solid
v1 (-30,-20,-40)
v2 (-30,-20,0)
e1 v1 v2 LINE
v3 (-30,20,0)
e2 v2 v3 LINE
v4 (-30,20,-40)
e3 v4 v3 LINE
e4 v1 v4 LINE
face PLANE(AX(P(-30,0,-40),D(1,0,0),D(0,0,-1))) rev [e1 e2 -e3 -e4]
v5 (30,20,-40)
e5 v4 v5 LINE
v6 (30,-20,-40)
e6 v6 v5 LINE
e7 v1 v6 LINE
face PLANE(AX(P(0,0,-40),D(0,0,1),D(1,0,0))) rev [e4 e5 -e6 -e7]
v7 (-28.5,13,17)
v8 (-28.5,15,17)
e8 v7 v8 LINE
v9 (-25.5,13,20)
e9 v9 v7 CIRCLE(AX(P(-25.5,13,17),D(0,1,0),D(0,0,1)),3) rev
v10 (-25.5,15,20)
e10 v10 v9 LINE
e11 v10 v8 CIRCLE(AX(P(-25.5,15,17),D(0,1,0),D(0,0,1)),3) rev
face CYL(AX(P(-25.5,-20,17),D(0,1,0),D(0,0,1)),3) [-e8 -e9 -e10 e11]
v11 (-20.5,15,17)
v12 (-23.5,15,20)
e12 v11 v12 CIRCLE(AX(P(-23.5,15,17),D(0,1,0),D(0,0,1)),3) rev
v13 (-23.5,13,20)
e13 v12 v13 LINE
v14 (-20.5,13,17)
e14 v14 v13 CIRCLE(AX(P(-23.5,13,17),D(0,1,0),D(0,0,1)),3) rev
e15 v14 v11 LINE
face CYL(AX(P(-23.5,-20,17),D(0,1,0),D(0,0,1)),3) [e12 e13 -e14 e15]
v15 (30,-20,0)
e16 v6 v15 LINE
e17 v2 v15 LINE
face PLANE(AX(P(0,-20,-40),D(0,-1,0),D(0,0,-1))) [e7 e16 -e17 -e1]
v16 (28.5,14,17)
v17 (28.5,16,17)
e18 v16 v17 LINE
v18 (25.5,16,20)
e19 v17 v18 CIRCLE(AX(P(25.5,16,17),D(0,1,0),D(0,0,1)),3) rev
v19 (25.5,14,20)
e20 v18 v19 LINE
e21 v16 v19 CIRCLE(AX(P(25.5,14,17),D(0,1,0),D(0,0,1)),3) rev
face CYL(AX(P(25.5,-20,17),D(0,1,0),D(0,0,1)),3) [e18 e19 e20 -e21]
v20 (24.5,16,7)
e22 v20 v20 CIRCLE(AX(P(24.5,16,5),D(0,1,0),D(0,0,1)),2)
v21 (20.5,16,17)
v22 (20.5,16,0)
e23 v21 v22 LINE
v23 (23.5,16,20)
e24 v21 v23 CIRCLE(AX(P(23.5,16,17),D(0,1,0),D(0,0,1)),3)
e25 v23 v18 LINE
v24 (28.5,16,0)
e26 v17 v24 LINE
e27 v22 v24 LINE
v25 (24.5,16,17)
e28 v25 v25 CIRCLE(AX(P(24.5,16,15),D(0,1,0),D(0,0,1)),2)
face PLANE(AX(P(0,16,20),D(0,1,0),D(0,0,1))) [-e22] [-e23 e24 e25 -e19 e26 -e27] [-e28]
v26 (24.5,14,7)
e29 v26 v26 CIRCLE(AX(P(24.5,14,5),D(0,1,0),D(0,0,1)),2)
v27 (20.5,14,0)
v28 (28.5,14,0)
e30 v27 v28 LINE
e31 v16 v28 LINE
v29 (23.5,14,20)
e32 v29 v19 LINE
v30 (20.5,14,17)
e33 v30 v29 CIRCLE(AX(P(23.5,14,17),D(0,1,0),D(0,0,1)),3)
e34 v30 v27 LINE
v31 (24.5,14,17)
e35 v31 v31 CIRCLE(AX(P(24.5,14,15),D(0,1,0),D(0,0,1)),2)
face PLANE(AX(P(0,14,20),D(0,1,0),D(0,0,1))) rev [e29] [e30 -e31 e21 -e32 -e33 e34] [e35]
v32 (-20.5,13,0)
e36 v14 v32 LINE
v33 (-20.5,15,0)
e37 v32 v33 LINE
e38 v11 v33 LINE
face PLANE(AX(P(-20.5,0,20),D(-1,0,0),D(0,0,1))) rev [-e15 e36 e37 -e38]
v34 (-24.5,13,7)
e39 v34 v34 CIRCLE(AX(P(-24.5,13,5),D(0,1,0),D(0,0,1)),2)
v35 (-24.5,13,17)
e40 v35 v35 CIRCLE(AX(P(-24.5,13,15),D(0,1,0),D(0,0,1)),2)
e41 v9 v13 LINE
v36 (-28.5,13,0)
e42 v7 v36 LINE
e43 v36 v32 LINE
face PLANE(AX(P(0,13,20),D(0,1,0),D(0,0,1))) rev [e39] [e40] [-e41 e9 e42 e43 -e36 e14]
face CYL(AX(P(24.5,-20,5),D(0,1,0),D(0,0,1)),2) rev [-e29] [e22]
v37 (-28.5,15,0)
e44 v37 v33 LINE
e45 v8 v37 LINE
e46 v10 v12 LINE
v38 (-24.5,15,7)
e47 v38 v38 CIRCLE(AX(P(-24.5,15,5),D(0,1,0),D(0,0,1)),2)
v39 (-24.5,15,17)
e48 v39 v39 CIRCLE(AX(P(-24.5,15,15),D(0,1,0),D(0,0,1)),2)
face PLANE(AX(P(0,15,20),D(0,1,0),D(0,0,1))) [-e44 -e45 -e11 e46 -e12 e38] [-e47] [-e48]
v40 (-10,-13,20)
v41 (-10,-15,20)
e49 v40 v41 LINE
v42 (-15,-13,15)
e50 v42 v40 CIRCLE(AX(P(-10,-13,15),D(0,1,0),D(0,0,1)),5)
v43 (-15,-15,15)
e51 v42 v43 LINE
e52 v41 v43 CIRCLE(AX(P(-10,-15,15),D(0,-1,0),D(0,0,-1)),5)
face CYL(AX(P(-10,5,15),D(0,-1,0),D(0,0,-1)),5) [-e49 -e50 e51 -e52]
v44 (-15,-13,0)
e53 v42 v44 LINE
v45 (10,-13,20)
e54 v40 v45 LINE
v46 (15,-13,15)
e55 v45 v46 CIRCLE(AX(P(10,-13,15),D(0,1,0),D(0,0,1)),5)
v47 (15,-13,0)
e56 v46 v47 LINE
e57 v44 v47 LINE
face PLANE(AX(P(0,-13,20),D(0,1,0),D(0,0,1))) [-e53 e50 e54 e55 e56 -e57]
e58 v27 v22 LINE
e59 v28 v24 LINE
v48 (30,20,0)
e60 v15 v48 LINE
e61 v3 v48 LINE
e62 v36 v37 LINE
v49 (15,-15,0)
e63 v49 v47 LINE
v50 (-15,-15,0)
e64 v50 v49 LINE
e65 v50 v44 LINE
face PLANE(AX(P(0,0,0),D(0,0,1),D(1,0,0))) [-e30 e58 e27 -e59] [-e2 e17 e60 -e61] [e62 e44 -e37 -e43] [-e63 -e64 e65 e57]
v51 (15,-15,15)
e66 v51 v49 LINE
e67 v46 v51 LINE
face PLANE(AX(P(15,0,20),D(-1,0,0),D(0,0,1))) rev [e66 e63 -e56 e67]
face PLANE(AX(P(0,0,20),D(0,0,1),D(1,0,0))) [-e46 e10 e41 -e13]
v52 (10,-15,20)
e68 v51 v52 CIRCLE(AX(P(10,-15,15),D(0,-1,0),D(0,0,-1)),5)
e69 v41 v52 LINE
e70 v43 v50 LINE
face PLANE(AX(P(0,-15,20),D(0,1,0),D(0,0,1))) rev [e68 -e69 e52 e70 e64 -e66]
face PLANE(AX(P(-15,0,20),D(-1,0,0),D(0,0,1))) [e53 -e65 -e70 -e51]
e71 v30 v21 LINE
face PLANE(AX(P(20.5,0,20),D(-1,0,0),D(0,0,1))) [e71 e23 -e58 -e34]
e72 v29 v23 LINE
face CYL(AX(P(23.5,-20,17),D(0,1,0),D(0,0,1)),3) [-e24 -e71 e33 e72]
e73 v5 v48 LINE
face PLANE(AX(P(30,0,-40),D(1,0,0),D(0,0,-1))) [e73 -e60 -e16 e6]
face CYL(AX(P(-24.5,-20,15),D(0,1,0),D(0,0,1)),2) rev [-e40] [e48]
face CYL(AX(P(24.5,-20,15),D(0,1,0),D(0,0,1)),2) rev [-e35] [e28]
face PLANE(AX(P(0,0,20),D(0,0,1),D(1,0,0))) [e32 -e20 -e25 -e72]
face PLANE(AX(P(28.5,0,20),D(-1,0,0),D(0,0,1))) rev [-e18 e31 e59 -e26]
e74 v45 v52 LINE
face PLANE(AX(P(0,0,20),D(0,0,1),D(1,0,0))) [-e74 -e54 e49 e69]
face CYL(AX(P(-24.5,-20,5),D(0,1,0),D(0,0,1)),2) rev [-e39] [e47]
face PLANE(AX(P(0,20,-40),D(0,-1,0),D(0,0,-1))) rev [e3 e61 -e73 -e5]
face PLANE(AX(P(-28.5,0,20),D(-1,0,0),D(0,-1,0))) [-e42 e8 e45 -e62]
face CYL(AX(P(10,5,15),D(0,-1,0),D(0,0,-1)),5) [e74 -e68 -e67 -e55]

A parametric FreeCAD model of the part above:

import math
import FreeCAD as App
import Part
import Sketcher


def add_polygon(sketch, points):
    """Adds a closed chain of lines whose ends are joined by coincident constraints."""
    first, n = sketch.GeometryCount, len(points)
    for a, b in zip(points, points[1:] + points[:1]):
        sketch.addGeometry(Part.LineSegment(App.Vector(*a, 0), App.Vector(*b, 0)), False)
    for i in range(n):
        sketch.addConstraint(Sketcher.Constraint("Coincident", first + i, 2, first + (i + 1) % n, 1))

doc = App.newDocument("Part")
body = doc.addObject("PartDesign::Body", "Body")

sketch1 = body.newObject("Sketcher::SketchObject", "Sketch")
sketch1.AttachmentSupport = (doc.getObject("XY_Plane"), [""])
sketch1.MapMode = "FlatFace"
add_polygon(sketch1, [(-30, 20), (-30, -20), (30, -20), (30, 20)])
sketch1.addConstraint(Sketcher.Constraint("Vertical", 0))
sketch1.addConstraint(Sketcher.Constraint("Horizontal", 1))
sketch1.addConstraint(Sketcher.Constraint("Vertical", 2))
sketch1.addConstraint(Sketcher.Constraint("Horizontal", 3))
sketch1.addConstraint(Sketcher.Constraint("Symmetric", 0, 2, 2, 2, -1, 1))
sketch1.addConstraint(Sketcher.Constraint("DistanceX", 1, 1, 1, 2, 60.0))
sketch1.addConstraint(Sketcher.Constraint("DistanceY", 0, 2, 0, 1, 40.0))
pad1 = body.newObject("PartDesign::Pad", "Pad")
pad1.Profile = sketch1
pad1.Length = 40
pad1.Reversed = True

sketch2 = body.newObject("Sketcher::SketchObject", "Sketch001")
sketch2.AttachmentSupport = (doc.getObject("XY_Plane"), [""])
sketch2.MapMode = "FlatFace"
add_polygon(sketch2, [(-28.5, 15), (-28.5, 13), (-20.5, 13), (-20.5, 15)])
add_polygon(sketch2, [(20.5, 16), (20.5, 14), (28.5, 14), (28.5, 16)])
add_polygon(sketch2, [(-15, -13), (-15, -15), (15, -15), (15, -13)])
sketch2.addConstraint(Sketcher.Constraint("Vertical", 0))
sketch2.addConstraint(Sketcher.Constraint("Horizontal", 1))
sketch2.addConstraint(Sketcher.Constraint("Vertical", 2))
sketch2.addConstraint(Sketcher.Constraint("Horizontal", 3))
sketch2.addConstraint(Sketcher.Constraint("Vertical", 4))
sketch2.addConstraint(Sketcher.Constraint("Horizontal", 5))
sketch2.addConstraint(Sketcher.Constraint("Vertical", 6))
sketch2.addConstraint(Sketcher.Constraint("Horizontal", 7))
sketch2.addConstraint(Sketcher.Constraint("Vertical", 8))
sketch2.addConstraint(Sketcher.Constraint("Horizontal", 9))
sketch2.addConstraint(Sketcher.Constraint("Vertical", 10))
sketch2.addConstraint(Sketcher.Constraint("Horizontal", 11))
sketch2.addConstraint(Sketcher.Constraint("Equal", 3, 5))
sketch2.addConstraint(Sketcher.Constraint("Equal", 2, 4))
sketch2.addConstraint(Sketcher.Constraint("Equal", 6, 8))
sketch2.addConstraint(Sketcher.Constraint("DistanceX", 1, 1, 1, 2, 8.0))
sketch2.addConstraint(Sketcher.Constraint("DistanceX", 9, 1, 9, 2, 30.0))
sketch2.addConstraint(Sketcher.Constraint("DistanceY", 0, 2, 0, 1, 2.0))
sketch2.addConstraint(Sketcher.Constraint("DistanceY", -1, 1, 0, 2, 13.0))
sketch2.addConstraint(Sketcher.Constraint("DistanceY", -1, 1, 4, 2, 14.0))
sketch2.addConstraint(Sketcher.Constraint("DistanceX", 8, 2, -1, 1, 15.0))
sketch2.addConstraint(Sketcher.Constraint("DistanceY", 8, 2, -1, 1, 15.0))
sketch2.addConstraint(Sketcher.Constraint("DistanceX", 1, 2, 4, 2, 41.0))
sketch2.addConstraint(Sketcher.Constraint("DistanceX", 0, 2, -1, 1, 28.5))
pad2 = body.newObject("PartDesign::Pad", "Pad001")
pad2.Profile = sketch2
pad2.Length = 20

sketch3 = body.newObject("Sketcher::SketchObject", "Sketch002")
sketch3.AttachmentSupport = (doc.getObject("XZ_Plane"), [""])
sketch3.MapMode = "FlatFace"
sketch3.AttachmentOffset = App.Placement(App.Vector(0, 0, -16), App.Rotation())
sketch3.addGeometry(Part.Circle(App.Vector(-24.5, 15, 0), App.Vector(0, 0, 1), 2), False)
sketch3.addGeometry(Part.Circle(App.Vector(-24.5, 5, 0), App.Vector(0, 0, 1), 2), False)
sketch3.addGeometry(Part.Circle(App.Vector(24.5, 5, 0), App.Vector(0, 0, 1), 2), False)
sketch3.addGeometry(Part.Circle(App.Vector(24.5, 15, 0), App.Vector(0, 0, 1), 2), False)
sketch3.addGeometry(Part.ArcOfCircle(Part.Circle(App.Vector(23.5, 17, 0), App.Vector(0, 0, 1), 3), math.radians(90), math.radians(180)), False)
sketch3.addGeometry(Part.LineSegment(App.Vector(20.5, 17, 0), App.Vector(20.5, 20, 0)), False)
sketch3.addGeometry(Part.LineSegment(App.Vector(20.5, 20, 0), App.Vector(23.5, 20, 0)), False)
sketch3.addGeometry(Part.LineSegment(App.Vector(28.5, 20, 0), App.Vector(28.5, 17, 0)), False)
sketch3.addGeometry(Part.ArcOfCircle(Part.Circle(App.Vector(25.5, 17, 0), App.Vector(0, 0, 1), 3), math.radians(0), math.radians(90)), False)
sketch3.addGeometry(Part.LineSegment(App.Vector(25.5, 20, 0), App.Vector(28.5, 20, 0)), False)
sketch3.addGeometry(Part.ArcOfCircle(Part.Circle(App.Vector(-25.5, 17, 0), App.Vector(0, 0, 1), 3), math.radians(90), math.radians(180)), False)
sketch3.addGeometry(Part.LineSegment(App.Vector(-28.5, 17, 0), App.Vector(-28.5, 20, 0)), False)
sketch3.addGeometry(Part.LineSegment(App.Vector(-28.5, 20, 0), App.Vector(-25.5, 20, 0)), False)
sketch3.addGeometry(Part.LineSegment(App.Vector(-20.5, 20, 0), App.Vector(-20.5, 17, 0)), False)
sketch3.addGeometry(Part.ArcOfCircle(Part.Circle(App.Vector(-23.5, 17, 0), App.Vector(0, 0, 1), 3), math.radians(0), math.radians(90)), False)
sketch3.addGeometry(Part.LineSegment(App.Vector(-23.5, 20, 0), App.Vector(-20.5, 20, 0)), False)
sketch3.addConstraint(Sketcher.Constraint("Tangent", 4, 2, 5, 1))
sketch3.addConstraint(Sketcher.Constraint("Coincident", 5, 2, 6, 1))
sketch3.addConstraint(Sketcher.Constraint("Tangent", 6, 2, 4, 1))
sketch3.addConstraint(Sketcher.Constraint("Tangent", 7, 2, 8, 1))
sketch3.addConstraint(Sketcher.Constraint("Tangent", 8, 2, 9, 1))
sketch3.addConstraint(Sketcher.Constraint("Coincident", 9, 2, 7, 1))
sketch3.addConstraint(Sketcher.Constraint("Tangent", 10, 2, 11, 1))
sketch3.addConstraint(Sketcher.Constraint("Coincident", 11, 2, 12, 1))
sketch3.addConstraint(Sketcher.Constraint("Tangent", 12, 2, 10, 1))
sketch3.addConstraint(Sketcher.Constraint("Tangent", 13, 2, 14, 1))
sketch3.addConstraint(Sketcher.Constraint("Tangent", 14, 2, 15, 1))
sketch3.addConstraint(Sketcher.Constraint("Coincident", 15, 2, 13, 1))
sketch3.addConstraint(Sketcher.Constraint("Vertical", 5))
sketch3.addConstraint(Sketcher.Constraint("Horizontal", 6))
sketch3.addConstraint(Sketcher.Constraint("Vertical", 7))
sketch3.addConstraint(Sketcher.Constraint("Horizontal", 9))
sketch3.addConstraint(Sketcher.Constraint("Vertical", 11))
sketch3.addConstraint(Sketcher.Constraint("Horizontal", 12))
sketch3.addConstraint(Sketcher.Constraint("Vertical", 13))
sketch3.addConstraint(Sketcher.Constraint("Horizontal", 15))
sketch3.addConstraint(Sketcher.Constraint("Equal", 0, 1))
sketch3.addConstraint(Sketcher.Constraint("Equal", 1, 2))
sketch3.addConstraint(Sketcher.Constraint("Equal", 2, 3))
sketch3.addConstraint(Sketcher.Constraint("Equal", 4, 8))
sketch3.addConstraint(Sketcher.Constraint("Equal", 8, 10))
sketch3.addConstraint(Sketcher.Constraint("Equal", 10, 14))
sketch3.addConstraint(Sketcher.Constraint("Symmetric", 1, 3, 2, 3, -2))
sketch3.addConstraint(Sketcher.Constraint("Symmetric", 0, 3, 3, 3, -2))
sketch3.addConstraint(Sketcher.Constraint("Symmetric", 8, 3, 10, 3, -2))
sketch3.addConstraint(Sketcher.Constraint("Symmetric", 4, 3, 14, 3, -2))
sketch3.addConstraint(Sketcher.Constraint("Horizontal", 4, 3, 8, 3))
sketch3.addConstraint(Sketcher.Constraint("Vertical", 0, 3, 1, 3))
sketch3.addConstraint(Sketcher.Constraint("Diameter", 0, 4.0))
sketch3.addConstraint(Sketcher.Constraint("Radius", 4, 3.0))
sketch3.addConstraint(Sketcher.Constraint("DistanceY", -1, 1, 0, 3, 15.0))
sketch3.addConstraint(Sketcher.Constraint("DistanceY", -1, 1, 1, 3, 5.0))
sketch3.addConstraint(Sketcher.Constraint("DistanceY", -1, 1, 4, 3, 17.0))
sketch3.addConstraint(Sketcher.Constraint("DistanceX", 1, 3, 2, 3, 49.0))
sketch3.addConstraint(Sketcher.Constraint("DistanceX", 4, 3, 3, 3, 1.0))
sketch3.addConstraint(Sketcher.Constraint("DistanceX", 4, 3, 8, 3, 2.0))
pocket1 = body.newObject("PartDesign::Pocket", "Pocket")
pocket1.Profile = sketch3
pocket1.Type = "ThroughAll"
pocket1.Reversed = True

sketch4 = body.newObject("Sketcher::SketchObject", "Sketch003")
sketch4.AttachmentSupport = (doc.getObject("XZ_Plane"), [""])
sketch4.MapMode = "FlatFace"
sketch4.AttachmentOffset = App.Placement(App.Vector(0, 0, 15), App.Rotation())
sketch4.addGeometry(Part.LineSegment(App.Vector(-15, 20, 0), App.Vector(-15, 15, 0)), False)
sketch4.addGeometry(Part.ArcOfCircle(Part.Circle(App.Vector(-10, 15, 0), App.Vector(0, 0, 1), 5), math.radians(90), math.radians(180)), False)
sketch4.addGeometry(Part.LineSegment(App.Vector(-10, 20, 0), App.Vector(-15, 20, 0)), False)
sketch4.addGeometry(Part.LineSegment(App.Vector(15, 20, 0), App.Vector(10, 20, 0)), False)
sketch4.addGeometry(Part.ArcOfCircle(Part.Circle(App.Vector(10, 15, 0), App.Vector(0, 0, 1), 5), math.radians(0), math.radians(90)), False)
sketch4.addGeometry(Part.LineSegment(App.Vector(15, 15, 0), App.Vector(15, 20, 0)), False)
sketch4.addConstraint(Sketcher.Constraint("Tangent", 0, 2, 1, 2))
sketch4.addConstraint(Sketcher.Constraint("Tangent", 1, 1, 2, 1))
sketch4.addConstraint(Sketcher.Constraint("Coincident", 2, 2, 0, 1))
sketch4.addConstraint(Sketcher.Constraint("Tangent", 3, 2, 4, 2))
sketch4.addConstraint(Sketcher.Constraint("Tangent", 4, 1, 5, 1))
sketch4.addConstraint(Sketcher.Constraint("Coincident", 5, 2, 3, 1))
sketch4.addConstraint(Sketcher.Constraint("Vertical", 0))
sketch4.addConstraint(Sketcher.Constraint("Horizontal", 2))
sketch4.addConstraint(Sketcher.Constraint("Horizontal", 3))
sketch4.addConstraint(Sketcher.Constraint("Vertical", 5))
sketch4.addConstraint(Sketcher.Constraint("Equal", 1, 4))
sketch4.addConstraint(Sketcher.Constraint("Symmetric", 1, 3, 4, 3, -2))
sketch4.addConstraint(Sketcher.Constraint("Radius", 1, 5.0))
sketch4.addConstraint(Sketcher.Constraint("DistanceX", 1, 3, -1, 1, 10.0))
sketch4.addConstraint(Sketcher.Constraint("DistanceY", -1, 1, 1, 3, 15.0))
pocket2 = body.newObject("PartDesign::Pocket", "Pocket001")
pocket2.Profile = sketch4
pocket2.Length = 20

doc.recompute()
